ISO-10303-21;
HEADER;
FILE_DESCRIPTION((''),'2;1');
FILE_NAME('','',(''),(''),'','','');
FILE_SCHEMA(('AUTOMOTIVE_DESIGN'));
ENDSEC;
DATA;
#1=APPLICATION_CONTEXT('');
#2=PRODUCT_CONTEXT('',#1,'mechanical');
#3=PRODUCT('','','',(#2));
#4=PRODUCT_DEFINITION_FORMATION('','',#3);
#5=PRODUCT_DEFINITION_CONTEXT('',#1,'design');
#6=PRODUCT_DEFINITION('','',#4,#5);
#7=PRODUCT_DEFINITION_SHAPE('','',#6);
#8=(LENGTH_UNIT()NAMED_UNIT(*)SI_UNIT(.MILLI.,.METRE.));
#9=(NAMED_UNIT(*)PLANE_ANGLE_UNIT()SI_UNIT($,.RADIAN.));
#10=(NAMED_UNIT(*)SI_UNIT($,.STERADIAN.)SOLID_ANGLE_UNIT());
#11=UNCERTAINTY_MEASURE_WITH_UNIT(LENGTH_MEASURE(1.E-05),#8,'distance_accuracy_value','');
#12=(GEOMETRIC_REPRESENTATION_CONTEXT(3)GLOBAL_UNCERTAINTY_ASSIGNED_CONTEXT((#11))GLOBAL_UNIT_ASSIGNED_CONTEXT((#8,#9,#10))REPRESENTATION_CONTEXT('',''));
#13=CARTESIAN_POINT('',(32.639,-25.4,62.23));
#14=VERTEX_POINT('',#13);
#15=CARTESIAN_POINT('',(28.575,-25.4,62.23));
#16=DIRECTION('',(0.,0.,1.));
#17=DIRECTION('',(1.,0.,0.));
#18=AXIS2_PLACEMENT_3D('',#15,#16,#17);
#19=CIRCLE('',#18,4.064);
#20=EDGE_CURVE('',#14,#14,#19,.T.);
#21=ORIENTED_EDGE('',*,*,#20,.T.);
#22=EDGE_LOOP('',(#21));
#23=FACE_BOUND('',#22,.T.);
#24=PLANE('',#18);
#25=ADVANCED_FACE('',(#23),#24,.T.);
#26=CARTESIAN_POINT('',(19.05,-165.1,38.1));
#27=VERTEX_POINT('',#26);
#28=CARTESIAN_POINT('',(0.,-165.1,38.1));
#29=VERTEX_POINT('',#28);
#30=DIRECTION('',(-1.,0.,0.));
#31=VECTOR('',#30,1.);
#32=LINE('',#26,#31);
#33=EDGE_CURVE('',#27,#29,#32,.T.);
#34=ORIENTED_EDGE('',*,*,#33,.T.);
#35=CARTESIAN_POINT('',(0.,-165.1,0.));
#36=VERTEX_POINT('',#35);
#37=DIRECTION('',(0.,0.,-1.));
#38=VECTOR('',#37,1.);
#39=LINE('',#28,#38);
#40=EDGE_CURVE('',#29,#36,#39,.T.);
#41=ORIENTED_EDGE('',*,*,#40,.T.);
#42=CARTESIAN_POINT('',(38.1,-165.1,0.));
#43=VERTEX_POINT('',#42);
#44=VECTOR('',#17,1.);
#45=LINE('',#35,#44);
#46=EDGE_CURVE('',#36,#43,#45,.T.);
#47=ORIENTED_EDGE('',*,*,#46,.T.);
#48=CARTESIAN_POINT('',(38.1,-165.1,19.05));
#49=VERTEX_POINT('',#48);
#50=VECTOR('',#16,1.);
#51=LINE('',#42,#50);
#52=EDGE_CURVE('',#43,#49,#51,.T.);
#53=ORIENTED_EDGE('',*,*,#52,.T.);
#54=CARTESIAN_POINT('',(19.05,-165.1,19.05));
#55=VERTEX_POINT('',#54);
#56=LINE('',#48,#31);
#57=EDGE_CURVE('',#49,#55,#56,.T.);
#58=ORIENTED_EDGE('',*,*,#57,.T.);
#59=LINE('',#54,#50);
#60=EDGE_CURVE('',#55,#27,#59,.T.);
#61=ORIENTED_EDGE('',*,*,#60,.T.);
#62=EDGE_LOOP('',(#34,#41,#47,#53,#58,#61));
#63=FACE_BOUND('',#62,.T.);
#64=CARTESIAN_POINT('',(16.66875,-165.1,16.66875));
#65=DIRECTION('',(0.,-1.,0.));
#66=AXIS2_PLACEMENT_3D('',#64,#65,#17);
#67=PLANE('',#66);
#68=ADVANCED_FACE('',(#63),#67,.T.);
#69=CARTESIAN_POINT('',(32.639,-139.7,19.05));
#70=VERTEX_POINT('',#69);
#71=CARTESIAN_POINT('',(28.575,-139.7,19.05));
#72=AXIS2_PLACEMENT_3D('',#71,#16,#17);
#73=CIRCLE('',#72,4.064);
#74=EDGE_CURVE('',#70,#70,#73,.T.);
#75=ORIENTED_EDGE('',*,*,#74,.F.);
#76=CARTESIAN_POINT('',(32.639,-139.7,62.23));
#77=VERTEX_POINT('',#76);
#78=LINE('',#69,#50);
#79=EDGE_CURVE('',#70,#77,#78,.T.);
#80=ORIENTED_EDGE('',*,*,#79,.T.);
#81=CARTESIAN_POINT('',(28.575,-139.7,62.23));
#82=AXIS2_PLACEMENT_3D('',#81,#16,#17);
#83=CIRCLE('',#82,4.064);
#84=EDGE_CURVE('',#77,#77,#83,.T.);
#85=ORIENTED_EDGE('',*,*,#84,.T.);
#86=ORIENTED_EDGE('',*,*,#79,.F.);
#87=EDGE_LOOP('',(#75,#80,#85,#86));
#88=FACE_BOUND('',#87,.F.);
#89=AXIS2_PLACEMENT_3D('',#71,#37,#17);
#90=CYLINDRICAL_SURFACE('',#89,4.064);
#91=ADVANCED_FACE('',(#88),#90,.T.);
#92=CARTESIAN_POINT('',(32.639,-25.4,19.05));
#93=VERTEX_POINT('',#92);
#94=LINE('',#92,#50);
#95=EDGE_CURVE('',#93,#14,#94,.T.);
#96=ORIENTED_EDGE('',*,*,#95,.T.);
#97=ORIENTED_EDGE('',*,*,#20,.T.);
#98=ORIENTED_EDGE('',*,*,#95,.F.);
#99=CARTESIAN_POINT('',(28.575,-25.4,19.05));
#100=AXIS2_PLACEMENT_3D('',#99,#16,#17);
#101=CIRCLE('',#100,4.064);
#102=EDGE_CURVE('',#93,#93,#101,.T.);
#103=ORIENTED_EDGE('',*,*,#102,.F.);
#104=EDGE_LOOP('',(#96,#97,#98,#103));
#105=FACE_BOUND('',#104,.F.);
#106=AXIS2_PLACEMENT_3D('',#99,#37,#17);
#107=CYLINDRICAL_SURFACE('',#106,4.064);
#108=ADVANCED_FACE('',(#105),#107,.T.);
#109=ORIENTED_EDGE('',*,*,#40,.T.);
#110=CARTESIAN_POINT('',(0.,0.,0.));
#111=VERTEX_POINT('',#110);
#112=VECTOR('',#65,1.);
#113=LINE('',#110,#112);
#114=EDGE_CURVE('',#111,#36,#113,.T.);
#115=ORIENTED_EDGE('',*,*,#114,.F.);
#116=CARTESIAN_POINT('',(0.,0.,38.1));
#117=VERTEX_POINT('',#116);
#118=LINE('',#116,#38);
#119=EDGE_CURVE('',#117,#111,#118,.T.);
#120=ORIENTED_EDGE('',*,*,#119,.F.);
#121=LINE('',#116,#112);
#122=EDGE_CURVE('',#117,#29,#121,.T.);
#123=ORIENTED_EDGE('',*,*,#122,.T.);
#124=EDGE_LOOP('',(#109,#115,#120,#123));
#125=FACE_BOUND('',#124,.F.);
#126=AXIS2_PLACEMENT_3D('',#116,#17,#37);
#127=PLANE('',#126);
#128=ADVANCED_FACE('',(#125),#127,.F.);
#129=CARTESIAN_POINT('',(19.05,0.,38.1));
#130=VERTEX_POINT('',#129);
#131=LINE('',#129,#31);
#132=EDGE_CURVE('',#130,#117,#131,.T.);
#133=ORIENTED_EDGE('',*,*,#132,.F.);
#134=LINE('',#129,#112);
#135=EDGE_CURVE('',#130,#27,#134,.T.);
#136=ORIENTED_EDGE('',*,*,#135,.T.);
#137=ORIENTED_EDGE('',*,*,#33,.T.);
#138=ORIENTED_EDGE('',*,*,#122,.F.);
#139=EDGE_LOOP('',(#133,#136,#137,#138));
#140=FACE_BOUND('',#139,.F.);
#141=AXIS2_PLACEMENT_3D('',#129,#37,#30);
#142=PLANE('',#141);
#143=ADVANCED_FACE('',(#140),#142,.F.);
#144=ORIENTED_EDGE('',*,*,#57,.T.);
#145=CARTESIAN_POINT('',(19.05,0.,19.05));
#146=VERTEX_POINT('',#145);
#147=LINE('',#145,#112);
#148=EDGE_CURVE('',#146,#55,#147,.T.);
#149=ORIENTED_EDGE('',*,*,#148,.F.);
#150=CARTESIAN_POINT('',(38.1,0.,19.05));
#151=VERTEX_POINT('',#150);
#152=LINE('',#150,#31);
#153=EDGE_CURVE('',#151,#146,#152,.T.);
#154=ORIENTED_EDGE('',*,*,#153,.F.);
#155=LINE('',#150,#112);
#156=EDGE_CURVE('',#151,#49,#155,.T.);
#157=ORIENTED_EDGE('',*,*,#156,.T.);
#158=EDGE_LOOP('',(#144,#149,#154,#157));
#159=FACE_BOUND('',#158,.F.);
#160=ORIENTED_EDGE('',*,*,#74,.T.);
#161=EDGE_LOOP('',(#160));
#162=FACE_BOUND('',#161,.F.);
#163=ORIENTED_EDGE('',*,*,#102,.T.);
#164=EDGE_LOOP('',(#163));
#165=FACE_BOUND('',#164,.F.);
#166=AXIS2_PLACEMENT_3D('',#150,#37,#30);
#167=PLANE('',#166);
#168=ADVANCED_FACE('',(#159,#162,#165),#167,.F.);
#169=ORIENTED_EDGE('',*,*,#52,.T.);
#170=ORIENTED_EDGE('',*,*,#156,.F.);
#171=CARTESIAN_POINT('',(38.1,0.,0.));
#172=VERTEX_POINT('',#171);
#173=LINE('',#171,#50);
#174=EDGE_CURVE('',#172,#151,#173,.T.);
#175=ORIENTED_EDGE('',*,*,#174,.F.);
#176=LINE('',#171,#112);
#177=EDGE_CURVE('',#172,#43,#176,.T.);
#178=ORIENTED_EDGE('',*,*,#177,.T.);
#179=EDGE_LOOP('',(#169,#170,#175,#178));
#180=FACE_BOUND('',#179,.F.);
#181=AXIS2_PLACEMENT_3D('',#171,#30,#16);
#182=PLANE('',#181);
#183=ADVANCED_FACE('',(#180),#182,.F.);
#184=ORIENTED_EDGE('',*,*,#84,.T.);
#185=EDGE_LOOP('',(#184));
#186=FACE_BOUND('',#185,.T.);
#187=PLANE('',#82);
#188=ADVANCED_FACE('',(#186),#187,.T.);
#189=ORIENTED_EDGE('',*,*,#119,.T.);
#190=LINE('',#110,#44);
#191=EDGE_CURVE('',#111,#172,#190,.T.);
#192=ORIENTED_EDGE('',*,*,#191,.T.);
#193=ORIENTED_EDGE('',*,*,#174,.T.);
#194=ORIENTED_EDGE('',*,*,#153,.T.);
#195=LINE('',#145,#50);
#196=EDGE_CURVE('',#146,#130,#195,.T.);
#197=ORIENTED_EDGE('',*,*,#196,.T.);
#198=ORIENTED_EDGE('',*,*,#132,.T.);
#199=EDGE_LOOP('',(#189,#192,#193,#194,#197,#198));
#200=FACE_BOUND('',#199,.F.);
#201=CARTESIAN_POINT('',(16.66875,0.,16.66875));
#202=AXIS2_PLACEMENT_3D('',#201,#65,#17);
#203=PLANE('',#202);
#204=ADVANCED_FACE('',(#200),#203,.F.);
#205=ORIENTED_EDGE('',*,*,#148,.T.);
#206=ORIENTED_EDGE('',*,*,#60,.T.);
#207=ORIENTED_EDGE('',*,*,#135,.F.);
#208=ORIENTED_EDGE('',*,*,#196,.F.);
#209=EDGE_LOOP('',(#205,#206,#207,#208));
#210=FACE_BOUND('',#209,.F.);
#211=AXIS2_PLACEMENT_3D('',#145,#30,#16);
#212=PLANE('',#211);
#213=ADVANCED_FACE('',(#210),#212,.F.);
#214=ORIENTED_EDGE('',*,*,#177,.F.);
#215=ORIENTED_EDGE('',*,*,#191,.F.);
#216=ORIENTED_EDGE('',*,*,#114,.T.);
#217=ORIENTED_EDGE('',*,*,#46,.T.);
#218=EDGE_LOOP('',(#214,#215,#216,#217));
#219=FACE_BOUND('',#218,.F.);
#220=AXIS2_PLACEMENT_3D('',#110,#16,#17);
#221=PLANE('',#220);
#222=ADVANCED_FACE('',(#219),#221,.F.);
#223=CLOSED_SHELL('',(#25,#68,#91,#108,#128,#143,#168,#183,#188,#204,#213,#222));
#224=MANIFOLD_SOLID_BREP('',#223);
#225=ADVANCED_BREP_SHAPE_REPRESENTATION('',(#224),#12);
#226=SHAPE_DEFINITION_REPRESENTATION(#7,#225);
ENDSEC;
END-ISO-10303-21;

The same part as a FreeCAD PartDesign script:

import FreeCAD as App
import Part
import Sketcher
from FreeCAD import Vector
Q = App.Units.Quantity

doc = App.newDocument("Part")
body = doc.addObject("PartDesign::Body", "Body")

# Sketch on XZ plane
sketch1 = body.newObject("Sketcher::SketchObject", "Sketch")
sketch1.AttachmentSupport = (doc.getObject("XZ_Plane"), [""])
sketch1.MapMode = "FlatFace"
sketch1.addGeometry(Part.LineSegment(Vector(0, 38, 0), Vector(0, 0, 0)), False)
sketch1.addGeometry(Part.LineSegment(Vector(0, 0, 0), Vector(38, 0, 0)), False)
sketch1.addGeometry(Part.LineSegment(Vector(38, 0, 0), Vector(38, 19, 0)), False)
sketch1.addGeometry(Part.LineSegment(Vector(38, 19, 0), Vector(19, 19, 0)), False)
sketch1.addGeometry(Part.LineSegment(Vector(19, 19, 0), Vector(19, 38, 0)), False)
sketch1.addGeometry(Part.LineSegment(Vector(19, 38, 0), Vector(0, 38, 0)), False)
sketch1.addConstraint(Sketcher.Constraint("Coincident", 0, 2, 1, 1))
sketch1.addConstraint(Sketcher.Constraint("Coincident", 1, 2, 2, 1))
sketch1.addConstraint(Sketcher.Constraint("Coincident", 2, 2, 3, 1))
sketch1.addConstraint(Sketcher.Constraint("Coincident", 3, 2, 4, 1))
sketch1.addConstraint(Sketcher.Constraint("Coincident", 4, 2, 5, 1))
sketch1.addConstraint(Sketcher.Constraint("Coincident", 5, 2, 0, 1))
sketch1.addConstraint(Sketcher.Constraint("Vertical", 0))
sketch1.addConstraint(Sketcher.Constraint("Horizontal", 1))
sketch1.addConstraint(Sketcher.Constraint("Vertical", 2))
sketch1.addConstraint(Sketcher.Constraint("Horizontal", 3))
sketch1.addConstraint(Sketcher.Constraint("Vertical", 4))
sketch1.addConstraint(Sketcher.Constraint("Horizontal", 5))
sketch1.addConstraint(Sketcher.Constraint("Coincident", 0, 2, -1, 1))
sketch1.addConstraint(Sketcher.Constraint("Equal", 3, 5))
sketch1.addConstraint(Sketcher.Constraint("Equal", 1, 0))
sketch1.addConstraint(Sketcher.Constraint("Equal", 5, 2))
sketch1.addConstraint(Sketcher.Constraint("DistanceX", 1, 1, 1, 2, Q("1.5 in")))
pad1 = body.newObject("PartDesign::Pad", "Pad")
pad1.Profile = sketch1
pad1.Length = Q("6.5 in")

# Sketch on XY plane
sketch2 = body.newObject("Sketcher::SketchObject", "Sketch001")
sketch2.AttachmentSupport = (doc.getObject("XY_Plane"), [""])
sketch2.MapMode = "FlatFace"
sketch2.AttachmentOffset = App.Placement(Vector(0, 0, 0.75 * 25.4), App.Rotation())
sketch2.addGeometry(Part.Circle(Vector(28.6, -25.4, 0), Vector(0, 0, 1), 4.1), False)
sketch2.addGeometry(Part.Circle(Vector(28.6, -139.7, 0), Vector(0, 0, 1), 4.1), False)
sketch2.addConstraint(Sketcher.Constraint("Equal", 0, 1))
sketch2.addConstraint(Sketcher.Constraint("Vertical", 0, 3, 1, 3))
sketch2.addConstraint(Sketcher.Constraint("Diameter", 0, Q("0.32 in")))
sketch2.addConstraint(Sketcher.Constraint("DistanceY", 0, 3, -1, 1, Q("1 in")))
sketch2.addConstraint(Sketcher.Constraint("DistanceY", 1, 3, -1, 1, Q("5.5 in")))
sketch2.addConstraint(Sketcher.Constraint("DistanceX", -1, 1, 0, 3, Q("1.125 in")))
pad2 = body.newObject("PartDesign::Pad", "Pad001")
pad2.Profile = sketch2
pad2.Length = Q("1.7 in")

doc.recompute()
